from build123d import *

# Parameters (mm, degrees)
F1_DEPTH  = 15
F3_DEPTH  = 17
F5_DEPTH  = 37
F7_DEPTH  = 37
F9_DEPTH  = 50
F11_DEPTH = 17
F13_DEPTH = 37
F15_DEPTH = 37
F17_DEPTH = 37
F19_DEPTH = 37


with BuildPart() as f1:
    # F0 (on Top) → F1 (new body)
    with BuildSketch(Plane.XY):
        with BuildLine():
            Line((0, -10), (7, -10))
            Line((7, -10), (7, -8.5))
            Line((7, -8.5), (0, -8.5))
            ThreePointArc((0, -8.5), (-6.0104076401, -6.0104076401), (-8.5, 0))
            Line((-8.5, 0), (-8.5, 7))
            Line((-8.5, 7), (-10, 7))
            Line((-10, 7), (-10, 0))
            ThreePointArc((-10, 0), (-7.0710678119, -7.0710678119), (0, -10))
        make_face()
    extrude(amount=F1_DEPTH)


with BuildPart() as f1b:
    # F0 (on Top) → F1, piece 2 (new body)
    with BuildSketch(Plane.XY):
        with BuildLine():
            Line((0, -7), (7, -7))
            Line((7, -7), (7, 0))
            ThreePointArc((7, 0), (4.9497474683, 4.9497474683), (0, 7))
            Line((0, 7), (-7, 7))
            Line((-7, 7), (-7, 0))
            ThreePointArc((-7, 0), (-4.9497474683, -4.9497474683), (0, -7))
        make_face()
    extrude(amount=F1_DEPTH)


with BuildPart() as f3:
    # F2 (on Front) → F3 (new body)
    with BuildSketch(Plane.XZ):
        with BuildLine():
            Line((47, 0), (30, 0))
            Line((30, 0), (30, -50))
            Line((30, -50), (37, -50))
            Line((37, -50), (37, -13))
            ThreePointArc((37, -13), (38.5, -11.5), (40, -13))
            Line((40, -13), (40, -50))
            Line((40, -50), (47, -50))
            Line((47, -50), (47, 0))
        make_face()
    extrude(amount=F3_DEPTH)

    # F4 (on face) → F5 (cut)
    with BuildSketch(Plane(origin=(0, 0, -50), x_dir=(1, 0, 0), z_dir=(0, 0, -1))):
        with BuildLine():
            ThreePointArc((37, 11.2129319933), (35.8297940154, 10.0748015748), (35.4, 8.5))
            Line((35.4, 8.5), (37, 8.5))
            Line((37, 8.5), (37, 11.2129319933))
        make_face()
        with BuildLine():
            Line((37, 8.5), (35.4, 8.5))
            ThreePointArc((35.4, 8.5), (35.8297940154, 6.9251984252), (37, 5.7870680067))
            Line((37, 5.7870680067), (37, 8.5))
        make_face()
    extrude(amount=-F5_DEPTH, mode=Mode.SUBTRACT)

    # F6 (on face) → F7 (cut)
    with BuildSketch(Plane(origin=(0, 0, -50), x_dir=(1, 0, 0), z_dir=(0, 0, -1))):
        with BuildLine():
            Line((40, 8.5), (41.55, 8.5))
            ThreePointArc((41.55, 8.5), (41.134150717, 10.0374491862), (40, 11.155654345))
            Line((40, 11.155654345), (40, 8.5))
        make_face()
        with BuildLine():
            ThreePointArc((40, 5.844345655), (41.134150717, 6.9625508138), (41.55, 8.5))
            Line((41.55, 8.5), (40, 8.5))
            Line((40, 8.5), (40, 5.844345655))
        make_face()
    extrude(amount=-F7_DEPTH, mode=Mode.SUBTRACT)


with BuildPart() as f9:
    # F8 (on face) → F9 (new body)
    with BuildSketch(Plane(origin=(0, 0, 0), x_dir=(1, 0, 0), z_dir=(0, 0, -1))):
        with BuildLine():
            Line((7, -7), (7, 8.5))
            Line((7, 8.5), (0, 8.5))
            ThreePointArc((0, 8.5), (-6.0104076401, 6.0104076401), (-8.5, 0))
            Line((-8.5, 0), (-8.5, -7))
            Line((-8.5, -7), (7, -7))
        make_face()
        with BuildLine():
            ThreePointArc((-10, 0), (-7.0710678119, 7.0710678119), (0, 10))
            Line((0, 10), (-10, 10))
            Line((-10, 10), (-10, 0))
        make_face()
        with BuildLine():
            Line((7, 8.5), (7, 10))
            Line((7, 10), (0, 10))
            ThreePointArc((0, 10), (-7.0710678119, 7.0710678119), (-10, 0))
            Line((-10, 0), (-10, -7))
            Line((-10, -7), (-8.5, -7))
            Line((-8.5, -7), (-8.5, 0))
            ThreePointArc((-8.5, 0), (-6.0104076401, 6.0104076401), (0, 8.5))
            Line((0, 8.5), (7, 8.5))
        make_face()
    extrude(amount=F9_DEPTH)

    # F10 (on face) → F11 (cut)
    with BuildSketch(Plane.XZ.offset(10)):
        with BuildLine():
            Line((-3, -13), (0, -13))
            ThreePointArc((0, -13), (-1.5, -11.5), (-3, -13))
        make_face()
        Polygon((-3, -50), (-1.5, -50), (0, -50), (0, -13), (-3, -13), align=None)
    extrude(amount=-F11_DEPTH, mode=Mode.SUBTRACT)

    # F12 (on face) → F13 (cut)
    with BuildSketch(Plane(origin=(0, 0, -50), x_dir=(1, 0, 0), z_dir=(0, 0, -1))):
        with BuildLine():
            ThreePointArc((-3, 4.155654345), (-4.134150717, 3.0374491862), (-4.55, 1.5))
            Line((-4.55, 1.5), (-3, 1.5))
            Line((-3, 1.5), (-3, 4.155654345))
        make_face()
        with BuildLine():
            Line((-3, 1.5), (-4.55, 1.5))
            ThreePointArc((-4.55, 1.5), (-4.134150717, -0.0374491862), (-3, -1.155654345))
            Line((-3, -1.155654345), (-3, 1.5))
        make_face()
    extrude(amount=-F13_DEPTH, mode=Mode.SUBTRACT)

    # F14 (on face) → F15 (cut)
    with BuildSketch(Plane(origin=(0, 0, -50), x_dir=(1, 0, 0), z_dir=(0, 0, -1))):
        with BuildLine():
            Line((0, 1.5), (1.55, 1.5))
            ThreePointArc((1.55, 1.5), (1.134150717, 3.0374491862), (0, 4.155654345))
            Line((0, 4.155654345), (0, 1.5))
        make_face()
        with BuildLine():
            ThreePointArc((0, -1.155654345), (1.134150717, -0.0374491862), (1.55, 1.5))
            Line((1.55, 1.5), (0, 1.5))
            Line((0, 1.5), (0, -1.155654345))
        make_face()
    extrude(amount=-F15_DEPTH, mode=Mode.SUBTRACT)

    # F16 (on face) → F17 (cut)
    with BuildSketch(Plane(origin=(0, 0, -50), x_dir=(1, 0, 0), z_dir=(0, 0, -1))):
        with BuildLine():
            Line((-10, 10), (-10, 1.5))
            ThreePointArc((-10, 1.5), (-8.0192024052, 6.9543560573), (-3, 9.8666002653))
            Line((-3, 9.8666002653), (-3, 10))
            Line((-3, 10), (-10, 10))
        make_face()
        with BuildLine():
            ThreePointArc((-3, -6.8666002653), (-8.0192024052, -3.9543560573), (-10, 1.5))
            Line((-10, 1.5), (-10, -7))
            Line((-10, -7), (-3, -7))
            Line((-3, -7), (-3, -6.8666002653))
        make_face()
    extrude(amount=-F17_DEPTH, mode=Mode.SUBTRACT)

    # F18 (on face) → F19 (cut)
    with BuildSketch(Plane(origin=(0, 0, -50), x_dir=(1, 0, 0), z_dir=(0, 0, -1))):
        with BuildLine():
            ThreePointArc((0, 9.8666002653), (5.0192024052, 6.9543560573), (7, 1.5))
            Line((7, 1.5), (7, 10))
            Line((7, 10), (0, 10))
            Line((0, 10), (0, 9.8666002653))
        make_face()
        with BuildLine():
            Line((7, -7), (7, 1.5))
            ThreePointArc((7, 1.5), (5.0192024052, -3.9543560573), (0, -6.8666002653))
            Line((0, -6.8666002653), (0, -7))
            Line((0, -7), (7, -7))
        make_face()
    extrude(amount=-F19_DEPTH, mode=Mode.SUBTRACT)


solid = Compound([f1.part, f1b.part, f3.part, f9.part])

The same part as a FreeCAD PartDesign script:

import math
import FreeCAD as App
import Part
import Sketcher

V = App.Vector


def add_polygon(sketch, points):
    """Adds a closed chain of lines whose ends are joined by coincident constraints."""
    first, n = sketch.GeometryCount, len(points)
    for a, b in zip(points, points[1:] + points[:1]):
        sketch.addGeometry(Part.LineSegment(App.Vector(*a, 0), App.Vector(*b, 0)), False)
    for i in range(n):
        sketch.addConstraint(Sketcher.Constraint("Coincident", first + i, 2, first + (i + 1) % n, 1))

doc = App.newDocument("Part")
body = doc.addObject("PartDesign::Body", "Body")

# Sketch on XY plane
sketch1 = doc.addObject("Sketcher::SketchObject", "Sketch")
body.addObject(sketch1)
sketch1.AttachmentSupport = (doc.XY_Plane, [""])
sketch1.MapMode = "FlatFace"
sketch1.addGeometry([
    Part.LineSegment(V(0, -10, 0), V(7, -10, 0)),  # 0
    Part.LineSegment(V(7, -10, 0), V(7, -8.5, 0)),  # 1
    Part.LineSegment(V(7, -8.5, 0), V(0, -8.5, 0)),  # 2
    Part.ArcOfCircle(Part.Circle(V(0, 0, 0), V(0, 0, 1), 8.5), math.radians(180), math.radians(270)),  # 3
    Part.LineSegment(V(-8.5, 0, 0), V(-8.5, 7, 0)),  # 4
    Part.LineSegment(V(-8.5, 7, 0), V(-10, 7, 0)),  # 5
    Part.LineSegment(V(-10, 7, 0), V(-10, 0, 0)),  # 6
    Part.ArcOfCircle(Part.Circle(V(0, 0, 0), V(0, 0, 1), 10), math.radians(180), math.radians(270)),  # 7
], False)
sketch1.addConstraint([
    Sketcher.Constraint("Coincident", 0, 2, 1, 1),
    Sketcher.Constraint("Coincident", 1, 2, 2, 1),
    Sketcher.Constraint("Tangent", 2, 2, 3, 2),
    Sketcher.Constraint("Tangent", 3, 1, 4, 1),
    Sketcher.Constraint("Coincident", 4, 2, 5, 1),
    Sketcher.Constraint("Coincident", 5, 2, 6, 1),
    Sketcher.Constraint("Tangent", 6, 2, 7, 1),
    Sketcher.Constraint("Tangent", 7, 2, 0, 1),
    Sketcher.Constraint("Horizontal", 0),
    Sketcher.Constraint("Vertical", 1),
    Sketcher.Constraint("Horizontal", 2),
    Sketcher.Constraint("Vertical", 4),
    Sketcher.Constraint("Horizontal", 5),
    Sketcher.Constraint("Vertical", 6),
    Sketcher.Constraint("Coincident", 3, 3, -1, 1),
    Sketcher.Constraint("Coincident", 7, 3, -1, 1),
    Sketcher.Constraint("Equal", 2, 4),
    Sketcher.Constraint("Radius", 7, 10.0),
    Sketcher.Constraint("Radius", 3, 8.5),
    Sketcher.Constraint("DistanceX", 0, 1, 0, 2, 7.0),
])
pad1 = doc.addObject("PartDesign::Pad", "Pad")
body.addObject(pad1)
pad1.Profile = sketch1
pad1.Length = 15
body2 = doc.addObject("PartDesign::Body", "Body001")

# Sketch on XY plane
sketch2 = doc.addObject("Sketcher::SketchObject", "Sketch001")
body2.addObject(sketch2)
sketch2.AttachmentSupport = (doc.getObject("XY_Plane001"), [""])
sketch2.MapMode = "FlatFace"
sketch2.addGeometry([
    Part.LineSegment(V(0, -7, 0), V(7, -7, 0)),  # 0
    Part.LineSegment(V(7, -7, 0), V(7, 0, 0)),  # 1
    Part.ArcOfCircle(Part.Circle(V(0, 0, 0), V(0, 0, 1), 7), math.radians(0), math.radians(90)),  # 2
    Part.LineSegment(V(0, 7, 0), V(-7, 7, 0)),  # 3
    Part.LineSegment(V(-7, 7, 0), V(-7, 0, 0)),  # 4
    Part.ArcOfCircle(Part.Circle(V(0, 0, 0), V(0, 0, 1), 7), math.radians(180), math.radians(270)),  # 5
], False)
sketch2.addConstraint([
    Sketcher.Constraint("Coincident", 0, 2, 1, 1),
    Sketcher.Constraint("Tangent", 1, 2, 2, 1),
    Sketcher.Constraint("Tangent", 2, 2, 3, 1),
    Sketcher.Constraint("Coincident", 3, 2, 4, 1),
    Sketcher.Constraint("Tangent", 4, 2, 5, 1),
    Sketcher.Constraint("Tangent", 5, 2, 0, 1),
    Sketcher.Constraint("Horizontal", 0),
    Sketcher.Constraint("Vertical", 1),
    Sketcher.Constraint("Horizontal", 3),
    Sketcher.Constraint("Vertical", 4),
    Sketcher.Constraint("Coincident", 2, 3, -1, 1),
    Sketcher.Constraint("Coincident", 5, 3, -1, 1),
    Sketcher.Constraint("Equal", 2, 5),
    Sketcher.Constraint("Radius", 2, 7.0),
])
pad2 = doc.addObject("PartDesign::Pad", "Pad001")
body2.addObject(pad2)
pad2.Profile = sketch2
pad2.Length = 15
body3 = doc.addObject("PartDesign::Body", "Body002")

# Sketch on XZ plane
sketch3 = doc.addObject("Sketcher::SketchObject", "Sketch002")
body3.addObject(sketch3)
sketch3.AttachmentSupport = (doc.getObject("XZ_Plane002"), [""])
sketch3.MapMode = "FlatFace"
sketch3.addGeometry([
    Part.LineSegment(V(47, 0, 0), V(30, 0, 0)),  # 0
    Part.LineSegment(V(30, 0, 0), V(30, -50, 0)),  # 1
    Part.LineSegment(V(30, -50, 0), V(37, -50, 0)),  # 2
    Part.LineSegment(V(37, -50, 0), V(37, -13, 0)),  # 3
    Part.ArcOfCircle(Part.Circle(V(38.5, -13, 0), V(0, 0, 1), 1.5), math.radians(0), math.radians(180)),  # 4
    Part.LineSegment(V(40, -13, 0), V(40, -50, 0)),  # 5
    Part.LineSegment(V(40, -50, 0), V(47, -50, 0)),  # 6
    Part.LineSegment(V(47, -50, 0), V(47, 0, 0)),  # 7
], False)
sketch3.addConstraint([
    Sketcher.Constraint("Coincident", 0, 2, 1, 1),
    Sketcher.Constraint("Coincident", 1, 2, 2, 1),
    Sketcher.Constraint("Coincident", 2, 2, 3, 1),
    Sketcher.Constraint("Tangent", 3, 2, 4, 2),
    Sketcher.Constraint("Tangent", 4, 1, 5, 1),
    Sketcher.Constraint("Coincident", 5, 2, 6, 1),
    Sketcher.Constraint("Coincident", 6, 2, 7, 1),
    Sketcher.Constraint("Coincident", 7, 2, 0, 1),
    Sketcher.Constraint("Horizontal", 0),
    Sketcher.Constraint("Vertical", 1),
    Sketcher.Constraint("Horizontal", 2),
    Sketcher.Constraint("Vertical", 3),
    Sketcher.Constraint("Vertical", 5),
    Sketcher.Constraint("Horizontal", 6),
    Sketcher.Constraint("Vertical", 7),
    Sketcher.Constraint("PointOnObject", 0, 2, -1),
    Sketcher.Constraint("Horizontal", 2, 2, 5, 2),
    Sketcher.Constraint("Equal", 2, 6),
    Sketcher.Constraint("Radius", 4, 1.5),
    Sketcher.Constraint("DistanceX", 0, 2, 0, 1, 17.0),
    Sketcher.Constraint("DistanceY", 1, 2, 1, 1, 50.0),
    Sketcher.Constraint("DistanceY", 3, 1, 3, 2, 37.0),
    Sketcher.Constraint("DistanceX", -1, 1, 0, 2, 30.0),
])
pad3 = doc.addObject("PartDesign::Pad", "Pad002")
body3.addObject(pad3)
pad3.Profile = sketch3
pad3.Length = 17

# Sketch on XY plane
sketch4 = doc.addObject("Sketcher::SketchObject", "Sketch003")
body3.addObject(sketch4)
sketch4.AttachmentSupport = (doc.getObject("XY_Plane002"), [""])
sketch4.MapMode = "FlatFace"
sketch4.AttachmentOffset = App.Placement(V(0, 0, -50), App.Rotation())
sketch4.addGeometry([
    Part.ArcOfCircle(Part.Circle(V(38.5, -8.5, 0), V(0, 0, 1), 3.1), math.radians(180), math.radians(241)),
    Part.ArcOfCircle(Part.Circle(V(38.5, -8.5, 0), V(0, 0, 1), 3.1), math.radians(119), math.radians(180)),
    Part.LineSegment(V(37, -5.8, 0), V(37, -11.2, 0)),
], False)
sketch4.addConstraint([
    Sketcher.Constraint("Tangent", 0, 1, 1, 2),
    Sketcher.Constraint("Coincident", 1, 1, 2, 1),
    Sketcher.Constraint("Coincident", 2, 2, 0, 2),
    Sketcher.Constraint("Vertical", 2),
    Sketcher.Constraint("Equal", 0, 1),
    Sketcher.Constraint("Horizontal", 1, 3, 0, 1),
    Sketcher.Constraint("Radius", 0, 3.1),
    Sketcher.Constraint("DistanceX", -1, 1, 1, 1, 37.0),
    Sketcher.Constraint("DistanceX", -1, 1, 0, 3, 38.5),
    Sketcher.Constraint("DistanceY", 0, 3, -1, 1, 8.5),
])
pocket1 = doc.addObject("PartDesign::Pocket", "Pocket")
body3.addObject(pocket1)
pocket1.Profile = sketch4
pocket1.Length = 37
pocket1.Reversed = True

# Sketch on XY plane
sketch5 = doc.addObject("Sketcher::SketchObject", "Sketch004")
body3.addObject(sketch5)
sketch5.AttachmentSupport = (doc.getObject("XY_Plane002"), [""])
sketch5.MapMode = "FlatFace"
sketch5.AttachmentOffset = App.Placement(V(0, 0, -50), App.Rotation())
sketch5.addGeometry([
    Part.ArcOfCircle(Part.Circle(V(38.5, -8.5, 0), V(0, 0, 1), 3), math.radians(-61), math.radians(0)),
    Part.LineSegment(V(40, -11.2, 0), V(40, -5.8, 0)),
    Part.ArcOfCircle(Part.Circle(V(38.5, -8.5, 0), V(0, 0, 1), 3), math.radians(0), math.radians(61)),
], False)
sketch5.addConstraint([
    Sketcher.Constraint("Coincident", 0, 1, 1, 1),
    Sketcher.Constraint("Coincident", 1, 2, 2, 2),
    Sketcher.Constraint("Tangent", 2, 1, 0, 2),
    Sketcher.Constraint("Vertical", 1),
    Sketcher.Constraint("Equal", 0, 2),
    Sketcher.Constraint("Horizontal", 0, 3, 2, 1),
    Sketcher.Constraint("Radius", 0, 3.05),
    Sketcher.Constraint("DistanceX", -1, 1, 0, 1, 40.0),
    Sketcher.Constraint("DistanceX", -1, 1, 0, 3, 38.5),
    Sketcher.Constraint("DistanceY", 0, 3, -1, 1, 8.5),
])
pocket2 = doc.addObject("PartDesign::Pocket", "Pocket001")
body3.addObject(pocket2)
pocket2.Profile = sketch5
pocket2.Length = 37
pocket2.Reversed = True
body4 = doc.addObject("PartDesign::Body", "Body003")

# Sketch on XY plane
sketch6 = doc.addObject("Sketcher::SketchObject", "Sketch005")
body4.addObject(sketch6)
sketch6.AttachmentSupport = (doc.getObject("XY_Plane003"), [""])
sketch6.MapMode = "FlatFace"
add_polygon(sketch6, [(7, 7), (7, -10), (-10, -10), (-10, 7)])  # lines 0-3
sketch6.addConstraint([
    Sketcher.Constraint("Vertical", 0),
    Sketcher.Constraint("Horizontal", 1),
    Sketcher.Constraint("Vertical", 2),
    Sketcher.Constraint("Horizontal", 3),
    Sketcher.Constraint("Equal", 3, 0),
    Sketcher.Constraint("DistanceX", 1, 2, 1, 1, 17.0),
    Sketcher.Constraint("DistanceX", -1, 1, 0, 2, 7.0),
    Sketcher.Constraint("DistanceY", 0, 2, -1, 1, 10.0),
])
pad4 = doc.addObject("PartDesign::Pad", "Pad003")
body4.addObject(pad4)
pad4.Profile = sketch6
pad4.Length = 50
pad4.Reversed = True

# Sketch on XZ plane
sketch7 = doc.addObject("Sketcher::SketchObject", "Sketch006")
body4.addObject(sketch7)
sketch7.AttachmentSupport = (doc.getObject("XZ_Plane003"), [""])
sketch7.MapMode = "FlatFace"
sketch7.AttachmentOffset = App.Placement(V(0, 0, 10), App.Rotation())
sketch7.addGeometry([
    Part.ArcOfCircle(Part.Circle(V(-1.5, -13, 0), V(0, 0, 1), 1.5), math.radians(0), math.radians(180)),
    Part.LineSegment(V(-3, -13, 0), V(-3, -50, 0)),
    Part.LineSegment(V(-3, -50, 0), V(0, -50, 0)),
    Part.LineSegment(V(0, -50, 0), V(0, -13, 0)),
], False)
sketch7.addConstraint([
    Sketcher.Constraint("Tangent", 0, 2, 1, 1),
    Sketcher.Constraint("Coincident", 1, 2, 2, 1),
    Sketcher.Constraint("Coincident", 2, 2, 3, 1),
    Sketcher.Constraint("Tangent", 3, 2, 0, 1),
    Sketcher.Constraint("Vertical", 1),
    Sketcher.Constraint("Horizontal", 2),
    Sketcher.Constraint("Vertical", 3),
    Sketcher.Constraint("PointOnObject", 2, 2, -2),
    Sketcher.Constraint("Radius", 0, 1.5),
    Sketcher.Constraint("DistanceY", 1, 2, 1, 1, 37.0),
    Sketcher.Constraint("DistanceY", 0, 3, -1, 1, 13.0),
])
pocket3 = doc.addObject("PartDesign::Pocket", "Pocket002")
body4.addObject(pocket3)
pocket3.Profile = sketch7
pocket3.Length = 17

# Sketch on XY plane
sketch8 = doc.addObject("Sketcher::SketchObject", "Sketch007")
body4.addObject(sketch8)
sketch8.AttachmentSupport = (doc.getObject("XY_Plane003"), [""])
sketch8.MapMode = "FlatFace"
sketch8.AttachmentOffset = App.Placement(V(0, 0, -50), App.Rotation())
sketch8.addGeometry([
    Part.ArcOfCircle(Part.Circle(V(-1.5, -1.5, 0), V(0, 0, 1), 3), math.radians(180), math.radians(241)),
    Part.ArcOfCircle(Part.Circle(V(-1.5, -1.5, 0), V(0, 0, 1), 3), math.radians(119), math.radians(180)),
    Part.LineSegment(V(-3, 1.2, 0), V(-3, -4.2, 0)),
], False)
sketch8.addConstraint([
    Sketcher.Constraint("Tangent", 0, 1, 1, 2),
    Sketcher.Constraint("Coincident", 1, 1, 2, 1),
    Sketcher.Constraint("Coincident", 2, 2, 0, 2),
    Sketcher.Constraint("Vertical", 2),
    Sketcher.Constraint("Equal", 0, 1),
    Sketcher.Constraint("Horizontal", 1, 3, 0, 1),
    Sketcher.Constraint("Radius", 0, 3.05),
    Sketcher.Constraint("DistanceX", 1, 1, -1, 1, 3.0),
    Sketcher.Constraint("DistanceX", 0, 3, -1, 1, 1.5),
    Sketcher.Constraint("DistanceY", 0, 3, -1, 1, 1.5),
])
pocket4 = doc.addObject("PartDesign::Pocket", "Pocket003")
body4.addObject(pocket4)
pocket4.Profile = sketch8
pocket4.Length = 37
pocket4.Reversed = True

# Sketch on XY plane
sketch9 = doc.addObject("Sketcher::SketchObject", "Sketch008")
body4.addObject(sketch9)
sketch9.AttachmentSupport = (doc.getObject("XY_Plane003"), [""])
sketch9.MapMode = "FlatFace"
sketch9.AttachmentOffset = App.Placement(V(0, 0, -50), App.Rotation())
sketch9.addGeometry([
    Part.ArcOfCircle(Part.Circle(V(-1.5, -1.5, 0), V(0, 0, 1), 3), math.radians(-61), math.radians(0)),
    Part.LineSegment(V(0, -4.2, 0), V(0, 1.2, 0)),
    Part.ArcOfCircle(Part.Circle(V(-1.5, -1.5, 0), V(0, 0, 1), 3), math.radians(0), math.radians(61)),
], False)
sketch9.addConstraint([
    Sketcher.Constraint("Coincident", 0, 1, 1, 1),
    Sketcher.Constraint("Coincident", 1, 2, 2, 2),
    Sketcher.Constraint("Tangent", 2, 1, 0, 2),
    Sketcher.Constraint("Vertical", 1),
    Sketcher.Constraint("Equal", 0, 2),
    Sketcher.Constraint("PointOnObject", 0, 1, -2),
    Sketcher.Constraint("Horizontal", 0, 3, 2, 1),
    Sketcher.Constraint("Radius", 0, 3.05),
    Sketcher.Constraint("DistanceX", 0, 3, -1, 1, 1.5),
    Sketcher.Constraint("DistanceY", 0, 3, -1, 1, 1.5),
])
pocket5 = doc.addObject("PartDesign::Pocket", "Pocket004")
body4.addObject(pocket5)
pocket5.Profile = sketch9
pocket5.Length = 37
pocket5.Reversed = True

# Sketch on XY plane
sketch10 = doc.addObject("Sketcher::SketchObject", "Sketch009")
body4.addObject(sketch10)
sketch10.AttachmentSupport = (doc.getObject("XY_Plane003"), [""])
sketch10.MapMode = "FlatFace"
sketch10.AttachmentOffset = App.Placement(V(0, 0, -50), App.Rotation())
sketch10.addGeometry([
    Part.LineSegment(V(-10, -10, 0), V(-10, -1.5, 0)),  # 0
    Part.ArcOfCircle(Part.Circle(V(-1.5, -1.5, 0), V(0, 0, 1), 8.5), math.radians(180), math.radians(260)),  # 1
    Part.LineSegment(V(-3, -9.87, 0), V(-3, -10, 0)),  # 2
    Part.LineSegment(V(-3, -10, 0), V(-10, -10, 0)),  # 3
    Part.ArcOfCircle(Part.Circle(V(-1.5, -1.5, 0), V(0, 0, 1), 8.5), math.radians(100), math.radians(180)),  # 4
    Part.LineSegment(V(-10, -1.5, 0), V(-10, 7, 0)),  # 5
    Part.LineSegment(V(-10, 7, 0), V(-3, 7, 0)),  # 6
    Part.LineSegment(V(-3, 7, 0), V(-3, 6.87, 0)),  # 7
], False)
sketch10.addConstraint([
    Sketcher.Constraint("Tangent", 0, 2, 1, 1),
    Sketcher.Constraint("Coincident", 1, 2, 2, 1),
    Sketcher.Constraint("Coincident", 2, 2, 3, 1),
    Sketcher.Constraint("Coincident", 3, 2, 0, 1),
    Sketcher.Constraint("Tangent", 4, 2, 5, 1),
    Sketcher.Constraint("Coincident", 5, 2, 6, 1),
    Sketcher.Constraint("Coincident", 6, 2, 7, 1),
    Sketcher.Constraint("Coincident", 7, 2, 4, 1),
    Sketcher.Constraint("Vertical", 0),
    Sketcher.Constraint("Vertical", 2),
    Sketcher.Constraint("Horizontal", 3),
    Sketcher.Constraint("Vertical", 5),
    Sketcher.Constraint("Horizontal", 6),
    Sketcher.Constraint("Vertical", 7),
    Sketcher.Constraint("Coincident", 4, 3, 1, 3),
    Sketcher.Constraint("Equal", 1, 4),
    Sketcher.Constraint("Vertical", 2, 2, 6, 2),
    Sketcher.Constraint("Equal", 0, 5),
    Sketcher.Constraint("Radius", 1, 8.5),
    Sketcher.Constraint("DistanceX", 3, 2, 3, 1, 7.0),
    Sketcher.Constraint("DistanceY", 0, 1, 0, 2, 8.5),
    Sketcher.Constraint("DistanceX", 0, 2, -1, 1, 10.0),
    Sketcher.Constraint("DistanceY", 2, 2, -1, 1, 10.0),
])
pocket6 = doc.addObject("PartDesign::Pocket", "Pocket005")
body4.addObject(pocket6)
pocket6.Profile = sketch10
pocket6.Length = 37
pocket6.Reversed = True

# Sketch on XY plane
sketch11 = doc.addObject("Sketcher::SketchObject", "Sketch010")
body4.addObject(sketch11)
sketch11.AttachmentSupport = (doc.getObject("XY_Plane003"), [""])
sketch11.MapMode = "FlatFace"
sketch11.AttachmentOffset = App.Placement(V(0, 0, -50), App.Rotation())
sketch11.addGeometry([
    Part.ArcOfCircle(Part.Circle(V(-1.5, -1.5, 0), V(0, 0, 1), 8.5), math.radians(-80), math.radians(0)),  # 0
    Part.LineSegment(V(7, -1.5, 0), V(7, -10, 0)),  # 1
    Part.LineSegment(V(7, -10, 0), V(0, -10, 0)),  # 2
    Part.LineSegment(V(0, -10, 0), V(0, -9.87, 0)),  # 3
    Part.LineSegment(V(7, 7, 0), V(7, -1.5, 0)),  # 4
    Part.ArcOfCircle(Part.Circle(V(-1.5, -1.5, 0), V(0, 0, 1), 8.5), math.radians(0), math.radians(80)),  # 5
    Part.LineSegment(V(0, 6.87, 0), V(0, 7, 0)),  # 6
    Part.LineSegment(V(0, 7, 0), V(7, 7, 0)),  # 7
], False)
sketch11.addConstraint([
    Sketcher.Constraint("Tangent", 0, 2, 1, 1),
    Sketcher.Constraint("Coincident", 1, 2, 2, 1),
    Sketcher.Constraint("Coincident", 2, 2, 3, 1),
    Sketcher.Constraint("Coincident", 3, 2, 0, 1),
    Sketcher.Constraint("Tangent", 4, 2, 5, 1),
    Sketcher.Constraint("Coincident", 5, 2, 6, 1),
    Sketcher.Constraint("Coincident", 6, 2, 7, 1),
    Sketcher.Constraint("Coincident", 7, 2, 4, 1),
    Sketcher.Constraint("Vertical", 1),
    Sketcher.Constraint("Horizontal", 2),
    Sketcher.Constraint("Vertical", 3),
    Sketcher.Constraint("Vertical", 4),
    Sketcher.Constraint("Vertical", 6),
    Sketcher.Constraint("Horizontal", 7),
    Sketcher.Constraint("Coincident", 5, 3, 0, 3),
    Sketcher.Constraint("Equal", 0, 5),
    Sketcher.Constraint("PointOnObject", 2, 2, -2),
    Sketcher.Constraint("PointOnObject", 5, 2, -2),
    Sketcher.Constraint("Equal", 1, 4),
    Sketcher.Constraint("Radius", 0, 8.5),
    Sketcher.Constraint("DistanceX", 2, 2, 2, 1, 7.0),
    Sketcher.Constraint("DistanceY", 1, 2, 1, 1, 8.5),
    Sketcher.Constraint("DistanceY", 1, 2, -1, 1, 10.0),
])
pocket7 = doc.addObject("PartDesign::Pocket", "Pocket006")
body4.addObject(pocket7)
pocket7.Profile = sketch11
pocket7.Length = 37
pocket7.Reversed = True

doc.recompute()
